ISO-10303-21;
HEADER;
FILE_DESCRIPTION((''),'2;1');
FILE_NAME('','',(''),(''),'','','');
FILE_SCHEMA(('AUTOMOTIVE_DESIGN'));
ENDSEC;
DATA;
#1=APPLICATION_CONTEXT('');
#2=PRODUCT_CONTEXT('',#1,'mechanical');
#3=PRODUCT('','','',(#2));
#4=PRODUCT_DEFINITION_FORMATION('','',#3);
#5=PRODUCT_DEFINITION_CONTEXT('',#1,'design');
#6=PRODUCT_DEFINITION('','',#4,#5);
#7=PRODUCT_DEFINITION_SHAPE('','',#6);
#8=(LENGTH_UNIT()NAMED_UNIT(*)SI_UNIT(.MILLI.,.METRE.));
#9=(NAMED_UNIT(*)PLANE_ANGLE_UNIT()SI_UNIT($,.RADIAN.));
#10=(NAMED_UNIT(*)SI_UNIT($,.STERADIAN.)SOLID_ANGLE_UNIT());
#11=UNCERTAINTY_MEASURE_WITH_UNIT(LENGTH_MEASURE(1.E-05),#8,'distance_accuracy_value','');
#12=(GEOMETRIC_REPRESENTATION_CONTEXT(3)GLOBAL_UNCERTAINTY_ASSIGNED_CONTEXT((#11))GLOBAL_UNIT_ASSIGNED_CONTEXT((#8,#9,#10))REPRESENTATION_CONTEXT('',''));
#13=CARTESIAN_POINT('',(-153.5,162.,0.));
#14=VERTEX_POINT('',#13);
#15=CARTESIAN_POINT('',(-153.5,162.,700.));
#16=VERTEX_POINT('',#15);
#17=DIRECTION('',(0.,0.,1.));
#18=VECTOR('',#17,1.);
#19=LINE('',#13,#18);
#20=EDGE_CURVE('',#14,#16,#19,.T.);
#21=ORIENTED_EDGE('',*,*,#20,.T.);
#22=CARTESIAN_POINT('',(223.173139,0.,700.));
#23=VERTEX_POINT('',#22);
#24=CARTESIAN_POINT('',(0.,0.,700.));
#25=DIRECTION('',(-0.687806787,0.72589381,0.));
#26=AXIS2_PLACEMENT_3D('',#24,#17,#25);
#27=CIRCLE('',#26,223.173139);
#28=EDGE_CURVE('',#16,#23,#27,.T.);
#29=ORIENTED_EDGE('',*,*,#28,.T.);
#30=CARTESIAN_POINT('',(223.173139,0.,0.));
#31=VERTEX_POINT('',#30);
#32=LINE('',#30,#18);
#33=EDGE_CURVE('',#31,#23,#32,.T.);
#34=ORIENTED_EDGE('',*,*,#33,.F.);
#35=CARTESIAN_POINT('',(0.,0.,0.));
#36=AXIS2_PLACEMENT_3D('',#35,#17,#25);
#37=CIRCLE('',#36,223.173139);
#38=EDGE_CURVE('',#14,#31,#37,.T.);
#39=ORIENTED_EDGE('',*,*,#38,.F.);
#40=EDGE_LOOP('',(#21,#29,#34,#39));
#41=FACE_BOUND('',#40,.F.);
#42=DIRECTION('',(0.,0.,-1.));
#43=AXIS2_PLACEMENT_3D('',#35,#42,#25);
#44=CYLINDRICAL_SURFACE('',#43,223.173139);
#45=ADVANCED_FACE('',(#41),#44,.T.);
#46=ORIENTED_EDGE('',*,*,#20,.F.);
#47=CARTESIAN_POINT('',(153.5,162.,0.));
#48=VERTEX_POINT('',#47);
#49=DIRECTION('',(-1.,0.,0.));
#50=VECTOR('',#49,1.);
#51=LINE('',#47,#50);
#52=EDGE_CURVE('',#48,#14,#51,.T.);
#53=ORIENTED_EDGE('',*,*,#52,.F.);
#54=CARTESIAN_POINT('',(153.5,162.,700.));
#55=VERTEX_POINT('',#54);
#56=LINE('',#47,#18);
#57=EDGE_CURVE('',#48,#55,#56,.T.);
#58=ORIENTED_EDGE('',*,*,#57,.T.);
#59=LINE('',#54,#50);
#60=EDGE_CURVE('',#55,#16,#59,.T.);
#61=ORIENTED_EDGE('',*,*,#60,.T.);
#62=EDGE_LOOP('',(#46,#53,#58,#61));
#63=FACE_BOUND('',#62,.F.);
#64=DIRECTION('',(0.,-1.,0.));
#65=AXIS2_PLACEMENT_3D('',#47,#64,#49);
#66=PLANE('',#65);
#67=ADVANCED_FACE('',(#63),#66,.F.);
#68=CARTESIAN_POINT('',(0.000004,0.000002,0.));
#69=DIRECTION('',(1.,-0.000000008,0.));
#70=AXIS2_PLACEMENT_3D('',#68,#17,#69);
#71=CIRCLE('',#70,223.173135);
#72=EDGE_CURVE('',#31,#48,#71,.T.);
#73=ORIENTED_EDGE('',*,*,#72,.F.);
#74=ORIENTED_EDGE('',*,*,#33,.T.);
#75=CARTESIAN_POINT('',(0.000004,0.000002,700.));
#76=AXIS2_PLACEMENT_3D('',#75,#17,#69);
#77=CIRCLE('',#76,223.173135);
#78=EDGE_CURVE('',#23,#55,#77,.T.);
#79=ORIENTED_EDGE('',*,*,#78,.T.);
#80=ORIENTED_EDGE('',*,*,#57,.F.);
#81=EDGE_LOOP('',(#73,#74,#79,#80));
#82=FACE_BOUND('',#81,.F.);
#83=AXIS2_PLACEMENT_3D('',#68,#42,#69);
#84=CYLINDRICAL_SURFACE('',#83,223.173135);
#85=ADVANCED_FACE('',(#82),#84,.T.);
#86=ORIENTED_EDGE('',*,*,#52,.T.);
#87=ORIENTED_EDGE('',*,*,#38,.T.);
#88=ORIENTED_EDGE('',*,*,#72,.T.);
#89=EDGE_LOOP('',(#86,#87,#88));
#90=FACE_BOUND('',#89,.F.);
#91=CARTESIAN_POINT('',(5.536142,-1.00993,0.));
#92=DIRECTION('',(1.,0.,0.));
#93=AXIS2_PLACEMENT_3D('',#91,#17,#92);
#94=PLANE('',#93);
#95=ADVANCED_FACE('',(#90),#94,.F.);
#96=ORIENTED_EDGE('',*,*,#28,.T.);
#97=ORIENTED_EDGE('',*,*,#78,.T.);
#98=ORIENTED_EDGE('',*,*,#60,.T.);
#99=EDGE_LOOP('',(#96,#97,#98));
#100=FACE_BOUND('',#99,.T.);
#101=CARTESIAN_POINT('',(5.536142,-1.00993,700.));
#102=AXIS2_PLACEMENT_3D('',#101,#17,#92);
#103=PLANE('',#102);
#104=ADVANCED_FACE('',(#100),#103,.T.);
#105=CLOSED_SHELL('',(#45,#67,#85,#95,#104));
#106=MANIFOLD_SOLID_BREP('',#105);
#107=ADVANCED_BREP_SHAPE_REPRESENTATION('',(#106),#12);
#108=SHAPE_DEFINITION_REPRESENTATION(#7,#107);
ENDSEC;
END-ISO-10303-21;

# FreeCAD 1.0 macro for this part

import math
import FreeCAD as App
import Part
import Sketcher

V = App.Vector

doc = App.newDocument("Part")
body = doc.addObject("PartDesign::Body", "Body")

# Sketch on XY plane
sketch1 = body.newObject("Sketcher::SketchObject", "Sketch")
sketch1.AttachmentSupport = (doc.getObject("XY_Plane"), [""])
sketch1.MapMode = "FlatFace"
sketch1.addGeometry(Part.ArcOfCircle(Part.Circle(V(0, 0, 0), V(0, 0, 1), 223), math.radians(133), math.radians(360)), False)
sketch1.addGeometry(Part.ArcOfCircle(Part.Circle(V(0, 0, 0), V(0, 0, 1), 223), math.radians(0), math.radians(47)), False)
sketch1.addGeometry(Part.LineSegment(V(154, 162, 0), V(-154, 162, 0)), False)
sketch1.addConstraint(Sketcher.Constraint("Tangent", 0, 2, 1, 1))
sketch1.addConstraint(Sketcher.Constraint("Coincident", 1, 2, 2, 1))
sketch1.addConstraint(Sketcher.Constraint("Coincident", 2, 2, 0, 1))
sketch1.addConstraint(Sketcher.Constraint("Horizontal", 2))
sketch1.addConstraint(Sketcher.Constraint("Coincident", 0, 3, -1, 1))
sketch1.addConstraint(Sketcher.Constraint("PointOnObject", 0, 2, -1))
sketch1.addConstraint(Sketcher.Constraint("DistanceX", 2, 2, 2, 1, 307.0))
sketch1.addConstraint(Sketcher.Constraint("DistanceY", -1, 1, 1, 2, 162.0))
sketch1.addConstraint(Sketcher.Constraint("DistanceX", 2, 2, -1, 1, 153.5))
pad1 = body.newObject("PartDesign::Pad", "Pad")
pad1.Profile = sketch1
pad1.Length = 700

doc.recompute()
